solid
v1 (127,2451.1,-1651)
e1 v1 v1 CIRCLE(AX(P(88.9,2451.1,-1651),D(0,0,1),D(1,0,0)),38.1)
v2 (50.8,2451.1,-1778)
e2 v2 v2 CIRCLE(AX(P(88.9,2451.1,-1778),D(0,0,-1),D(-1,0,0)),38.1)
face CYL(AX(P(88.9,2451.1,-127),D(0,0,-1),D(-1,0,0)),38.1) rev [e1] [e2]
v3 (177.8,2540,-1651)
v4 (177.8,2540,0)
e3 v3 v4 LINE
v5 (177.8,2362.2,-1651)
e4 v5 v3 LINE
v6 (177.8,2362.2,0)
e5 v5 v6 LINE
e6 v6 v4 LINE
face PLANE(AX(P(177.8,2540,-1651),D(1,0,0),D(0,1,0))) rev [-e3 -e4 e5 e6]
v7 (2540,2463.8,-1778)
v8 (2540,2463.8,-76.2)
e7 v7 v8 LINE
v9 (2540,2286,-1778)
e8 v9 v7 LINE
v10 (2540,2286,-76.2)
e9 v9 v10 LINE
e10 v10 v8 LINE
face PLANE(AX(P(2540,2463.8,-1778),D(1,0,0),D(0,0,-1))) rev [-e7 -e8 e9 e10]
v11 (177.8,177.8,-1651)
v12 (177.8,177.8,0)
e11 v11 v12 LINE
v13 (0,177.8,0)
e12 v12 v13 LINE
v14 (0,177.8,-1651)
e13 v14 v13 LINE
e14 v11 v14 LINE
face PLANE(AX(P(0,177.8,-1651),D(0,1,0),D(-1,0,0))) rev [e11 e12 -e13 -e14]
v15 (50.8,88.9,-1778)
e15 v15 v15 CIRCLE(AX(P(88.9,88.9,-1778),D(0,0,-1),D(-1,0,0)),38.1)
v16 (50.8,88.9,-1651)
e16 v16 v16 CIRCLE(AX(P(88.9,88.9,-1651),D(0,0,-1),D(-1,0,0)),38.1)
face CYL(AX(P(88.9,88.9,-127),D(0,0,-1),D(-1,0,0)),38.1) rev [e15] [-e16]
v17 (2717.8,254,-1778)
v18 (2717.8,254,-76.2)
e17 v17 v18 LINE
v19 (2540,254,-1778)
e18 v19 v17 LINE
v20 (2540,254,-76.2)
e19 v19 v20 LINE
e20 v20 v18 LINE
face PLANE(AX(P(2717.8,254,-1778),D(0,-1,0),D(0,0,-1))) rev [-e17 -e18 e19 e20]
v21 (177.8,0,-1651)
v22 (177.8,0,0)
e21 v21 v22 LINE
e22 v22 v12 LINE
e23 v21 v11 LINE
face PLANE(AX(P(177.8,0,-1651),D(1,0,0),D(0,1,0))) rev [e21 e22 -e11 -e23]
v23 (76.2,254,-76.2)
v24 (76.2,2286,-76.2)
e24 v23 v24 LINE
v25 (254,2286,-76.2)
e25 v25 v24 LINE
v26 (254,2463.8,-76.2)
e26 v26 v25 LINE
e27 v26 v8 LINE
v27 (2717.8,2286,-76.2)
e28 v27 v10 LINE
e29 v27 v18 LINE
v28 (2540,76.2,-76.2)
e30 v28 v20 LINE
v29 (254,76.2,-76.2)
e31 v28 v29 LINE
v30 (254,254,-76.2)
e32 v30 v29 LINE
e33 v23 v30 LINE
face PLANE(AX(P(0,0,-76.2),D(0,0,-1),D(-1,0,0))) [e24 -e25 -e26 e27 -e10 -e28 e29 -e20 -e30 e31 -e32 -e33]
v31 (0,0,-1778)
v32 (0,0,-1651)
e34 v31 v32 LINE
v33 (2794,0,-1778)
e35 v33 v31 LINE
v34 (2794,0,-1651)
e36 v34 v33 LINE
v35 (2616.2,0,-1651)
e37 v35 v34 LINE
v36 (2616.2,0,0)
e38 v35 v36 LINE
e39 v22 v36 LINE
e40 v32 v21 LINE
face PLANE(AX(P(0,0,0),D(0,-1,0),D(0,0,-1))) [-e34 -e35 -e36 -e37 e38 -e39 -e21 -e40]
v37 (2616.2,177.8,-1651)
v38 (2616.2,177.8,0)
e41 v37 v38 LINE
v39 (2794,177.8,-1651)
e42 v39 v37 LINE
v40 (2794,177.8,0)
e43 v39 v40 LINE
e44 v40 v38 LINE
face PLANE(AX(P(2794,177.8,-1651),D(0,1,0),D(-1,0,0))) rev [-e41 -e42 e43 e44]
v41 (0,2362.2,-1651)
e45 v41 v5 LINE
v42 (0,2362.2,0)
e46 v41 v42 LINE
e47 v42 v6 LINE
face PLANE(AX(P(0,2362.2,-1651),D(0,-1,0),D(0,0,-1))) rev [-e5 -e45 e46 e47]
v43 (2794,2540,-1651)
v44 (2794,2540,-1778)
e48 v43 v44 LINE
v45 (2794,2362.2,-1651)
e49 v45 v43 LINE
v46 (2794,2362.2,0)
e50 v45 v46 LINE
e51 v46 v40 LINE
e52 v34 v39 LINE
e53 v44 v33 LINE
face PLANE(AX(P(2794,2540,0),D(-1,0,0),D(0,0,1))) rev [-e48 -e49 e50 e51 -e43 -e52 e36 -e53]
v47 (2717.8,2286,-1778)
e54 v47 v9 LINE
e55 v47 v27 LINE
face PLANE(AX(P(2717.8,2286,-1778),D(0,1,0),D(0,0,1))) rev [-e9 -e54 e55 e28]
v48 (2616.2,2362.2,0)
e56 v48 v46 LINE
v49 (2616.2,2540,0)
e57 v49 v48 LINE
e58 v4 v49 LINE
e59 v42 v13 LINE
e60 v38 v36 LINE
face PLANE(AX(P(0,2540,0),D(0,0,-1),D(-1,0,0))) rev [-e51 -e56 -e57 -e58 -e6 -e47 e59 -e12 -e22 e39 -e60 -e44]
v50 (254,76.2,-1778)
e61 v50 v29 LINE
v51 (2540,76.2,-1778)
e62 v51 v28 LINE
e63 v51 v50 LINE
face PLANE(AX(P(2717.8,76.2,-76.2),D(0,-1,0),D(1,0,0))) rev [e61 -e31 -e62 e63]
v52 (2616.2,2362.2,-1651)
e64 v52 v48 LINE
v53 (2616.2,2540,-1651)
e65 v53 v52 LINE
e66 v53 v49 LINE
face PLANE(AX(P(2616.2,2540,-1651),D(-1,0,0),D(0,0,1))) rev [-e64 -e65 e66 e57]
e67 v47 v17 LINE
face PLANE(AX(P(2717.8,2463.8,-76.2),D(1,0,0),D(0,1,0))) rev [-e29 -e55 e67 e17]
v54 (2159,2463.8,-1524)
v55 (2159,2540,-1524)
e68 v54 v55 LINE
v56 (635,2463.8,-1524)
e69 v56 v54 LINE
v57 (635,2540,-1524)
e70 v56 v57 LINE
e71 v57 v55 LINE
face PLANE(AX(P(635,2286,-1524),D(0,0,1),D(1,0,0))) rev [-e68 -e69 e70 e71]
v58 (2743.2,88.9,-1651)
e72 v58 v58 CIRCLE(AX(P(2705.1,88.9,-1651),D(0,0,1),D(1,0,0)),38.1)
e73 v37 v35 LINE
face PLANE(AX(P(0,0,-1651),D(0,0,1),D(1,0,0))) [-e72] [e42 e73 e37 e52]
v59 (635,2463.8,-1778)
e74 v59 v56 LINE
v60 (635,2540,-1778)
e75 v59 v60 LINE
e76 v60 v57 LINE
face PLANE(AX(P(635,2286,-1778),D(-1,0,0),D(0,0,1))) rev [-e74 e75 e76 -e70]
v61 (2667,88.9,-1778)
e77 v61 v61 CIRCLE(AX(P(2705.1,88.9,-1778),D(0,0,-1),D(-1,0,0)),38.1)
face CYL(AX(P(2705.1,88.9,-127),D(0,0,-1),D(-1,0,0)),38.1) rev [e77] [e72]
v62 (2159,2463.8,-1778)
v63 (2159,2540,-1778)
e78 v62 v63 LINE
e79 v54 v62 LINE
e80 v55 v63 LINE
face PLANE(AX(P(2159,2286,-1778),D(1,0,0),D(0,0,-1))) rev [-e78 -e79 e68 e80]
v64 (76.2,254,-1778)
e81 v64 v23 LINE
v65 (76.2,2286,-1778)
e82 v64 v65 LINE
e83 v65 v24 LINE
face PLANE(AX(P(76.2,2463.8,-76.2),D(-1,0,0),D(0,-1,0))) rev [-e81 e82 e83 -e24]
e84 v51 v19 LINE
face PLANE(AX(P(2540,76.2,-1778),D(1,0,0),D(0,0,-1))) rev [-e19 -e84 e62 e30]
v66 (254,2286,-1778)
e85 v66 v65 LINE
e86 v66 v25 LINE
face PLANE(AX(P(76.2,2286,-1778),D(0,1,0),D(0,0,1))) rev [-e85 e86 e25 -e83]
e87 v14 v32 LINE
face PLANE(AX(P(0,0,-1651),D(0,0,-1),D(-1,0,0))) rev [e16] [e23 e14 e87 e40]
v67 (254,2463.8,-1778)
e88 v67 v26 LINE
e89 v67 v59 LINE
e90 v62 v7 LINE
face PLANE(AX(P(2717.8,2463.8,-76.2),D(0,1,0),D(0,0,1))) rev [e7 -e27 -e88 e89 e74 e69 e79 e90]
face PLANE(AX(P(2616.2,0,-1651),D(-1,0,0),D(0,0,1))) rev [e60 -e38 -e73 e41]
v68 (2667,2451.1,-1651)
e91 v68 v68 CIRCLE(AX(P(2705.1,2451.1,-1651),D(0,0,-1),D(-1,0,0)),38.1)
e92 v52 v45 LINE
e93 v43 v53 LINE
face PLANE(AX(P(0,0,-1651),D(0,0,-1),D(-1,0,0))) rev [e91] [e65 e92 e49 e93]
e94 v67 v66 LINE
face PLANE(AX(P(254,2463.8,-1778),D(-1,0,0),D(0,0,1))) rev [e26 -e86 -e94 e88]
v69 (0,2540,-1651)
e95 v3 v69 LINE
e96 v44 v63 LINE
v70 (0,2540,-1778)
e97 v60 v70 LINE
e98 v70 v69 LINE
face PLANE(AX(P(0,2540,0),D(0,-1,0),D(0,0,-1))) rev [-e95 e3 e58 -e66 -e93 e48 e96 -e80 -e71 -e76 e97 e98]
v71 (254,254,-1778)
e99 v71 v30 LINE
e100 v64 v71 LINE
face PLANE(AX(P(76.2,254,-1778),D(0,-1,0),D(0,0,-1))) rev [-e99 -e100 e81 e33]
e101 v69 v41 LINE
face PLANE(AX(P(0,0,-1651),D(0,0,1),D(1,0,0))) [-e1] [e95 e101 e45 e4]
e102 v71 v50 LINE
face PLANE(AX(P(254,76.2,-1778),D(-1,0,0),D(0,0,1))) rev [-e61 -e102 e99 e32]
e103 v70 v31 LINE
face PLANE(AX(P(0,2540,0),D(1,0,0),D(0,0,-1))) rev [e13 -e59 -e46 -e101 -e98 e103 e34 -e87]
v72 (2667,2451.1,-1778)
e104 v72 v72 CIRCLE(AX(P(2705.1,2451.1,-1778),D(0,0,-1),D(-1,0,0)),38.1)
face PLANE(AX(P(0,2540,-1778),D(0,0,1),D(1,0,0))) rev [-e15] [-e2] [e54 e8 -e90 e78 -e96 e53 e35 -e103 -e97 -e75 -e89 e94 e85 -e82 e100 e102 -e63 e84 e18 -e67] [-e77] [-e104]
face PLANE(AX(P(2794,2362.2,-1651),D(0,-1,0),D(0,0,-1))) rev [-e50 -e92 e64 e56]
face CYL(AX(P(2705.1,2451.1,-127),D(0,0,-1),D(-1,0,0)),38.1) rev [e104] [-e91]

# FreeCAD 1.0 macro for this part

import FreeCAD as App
import Part
import Sketcher

V = App.Vector
Q = App.Units.Quantity

doc = App.newDocument("Part")
params = doc.addObject("Spreadsheet::Sheet", "Params")
for row, (alias, value) in enumerate([
    ("sketch1_width", "110 in"),
    ("sketch1_height", "70 in"),
    ("pad1_length", "100 in"),
    ("sketch2_width", "104 in"),
    ("sketch2_height", "94 in"),
    ("pocket1_length", "67 in"),
    ("sketch3_width", "7 in"),
    ("pad2_length", "67 in"),
    ("sketch4_width", "7 in"),
    ("pocket2_length", "65 in"),
    ("sketch5_diameter", "3 in"),
    ("pocket3_length", "65 in"),
    ("sketch6_width", "60 in"),
    ("sketch6_height", "10 in"),
    ("pocket4_length", "10 in"),
], start=1):
    params.set(f"A{row}", alias)
    params.set(f"B{row}", "=" + value)
    params.setAlias(f"B{row}", alias)

body = doc.addObject("PartDesign::Body", "Body")

# Sketch on XZ plane
sketch1 = body.newObject("Sketcher::SketchObject", "Sketch")
sketch1.AttachmentSupport = (doc.getObject("XZ_Plane"), [""])
sketch1.MapMode = "FlatFace"
sketch1.addGeometry([
    Part.LineSegment(V(0, -1778, 0), V(0, 0, 0)),
    Part.LineSegment(V(0, 0, 0), V(2794, 0, 0)),
    Part.LineSegment(V(2794, 0, 0), V(2794, -1778, 0)),
    Part.LineSegment(V(2794, -1778, 0), V(0, -1778, 0)),
], False)
sketch1.addConstraint([
    Sketcher.Constraint("Coincident", 0, 2, 1, 1),
    Sketcher.Constraint("Coincident", 1, 2, 2, 1),
    Sketcher.Constraint("Coincident", 2, 2, 3, 1),
    Sketcher.Constraint("Coincident", 3, 2, 0, 1),
    Sketcher.Constraint("Vertical", 0),
    Sketcher.Constraint("Horizontal", 1),
    Sketcher.Constraint("Vertical", 2),
    Sketcher.Constraint("Horizontal", 3),
    Sketcher.Constraint("Coincident", 0, 2, -1, 1),
    Sketcher.Constraint("DistanceX", 1, 1, 1, 2, Q("110 in")),
    Sketcher.Constraint("DistanceY", 0, 1, 0, 2, Q("70 in")),
])
sketch1.setExpression("Constraints[9]", "Params.sketch1_width")
sketch1.setExpression("Constraints[10]", "Params.sketch1_height")
pad1 = body.newObject("PartDesign::Pad", "Pad")
pad1.Profile = sketch1
pad1.setExpression("Length", "Params.pad1_length")
pad1.Reversed = True

# Sketch on XY plane
sketch2 = body.newObject("Sketcher::SketchObject", "Sketch001")
sketch2.AttachmentSupport = (doc.getObject("XY_Plane"), [""])
sketch2.MapMode = "FlatFace"
sketch2.AttachmentOffset = App.Placement(V(0, 0, -70 * 25.4), App.Rotation())
sketch2.addGeometry([
    Part.LineSegment(V(2718, 2464, 0), V(2718, 76, 0)),
    Part.LineSegment(V(2718, 76, 0), V(76, 76, 0)),
    Part.LineSegment(V(76, 76, 0), V(76, 2464, 0)),
    Part.LineSegment(V(76, 2464, 0), V(2718, 2464, 0)),
], False)
sketch2.addConstraint([
    Sketcher.Constraint("Coincident", 0, 2, 1, 1),
    Sketcher.Constraint("Coincident", 1, 2, 2, 1),
    Sketcher.Constraint("Coincident", 2, 2, 3, 1),
    Sketcher.Constraint("Coincident", 3, 2, 0, 1),
    Sketcher.Constraint("Vertical", 0),
    Sketcher.Constraint("Horizontal", 1),
    Sketcher.Constraint("Vertical", 2),
    Sketcher.Constraint("Horizontal", 3),
    Sketcher.Constraint("DistanceX", 1, 2, 1, 1, Q("104 in")),
    Sketcher.Constraint("DistanceY", 0, 2, 0, 1, Q("94 in")),
    Sketcher.Constraint("DistanceX", -1, 1, 0, 2, Q("107 in")),
    Sketcher.Constraint("DistanceY", -1, 1, 0, 2, Q("3 in")),
])
sketch2.setExpression("Constraints[8]", "Params.sketch2_width")
sketch2.setExpression("Constraints[9]", "Params.sketch2_height")
pocket1 = body.newObject("PartDesign::Pocket", "Pocket")
pocket1.Profile = sketch2
pocket1.setExpression("Length", "Params.pocket1_length")
pocket1.Reversed = True

# Sketch on XY plane
sketch3 = body.newObject("Sketcher::SketchObject", "Sketch002")
sketch3.AttachmentSupport = (doc.getObject("XY_Plane"), [""])
sketch3.MapMode = "FlatFace"
sketch3.AttachmentOffset = App.Placement(V(0, 0, -3 * 25.4), App.Rotation())
sketch3.addGeometry([
    Part.LineSegment(V(2718, 2464, 0), V(2718, 2286, 0)),  # 0
    Part.LineSegment(V(2718, 2286, 0), V(2540, 2286, 0)),  # 1
    Part.LineSegment(V(2540, 2286, 0), V(2540, 2464, 0)),  # 2
    Part.LineSegment(V(2540, 2464, 0), V(2718, 2464, 0)),  # 3
    Part.LineSegment(V(254, 2464, 0), V(254, 2286, 0)),  # 4
    Part.LineSegment(V(254, 2286, 0), V(76, 2286, 0)),  # 5
    Part.LineSegment(V(76, 2286, 0), V(76, 2464, 0)),  # 6
    Part.LineSegment(V(76, 2464, 0), V(254, 2464, 0)),  # 7
    Part.LineSegment(V(2718, 254, 0), V(2718, 76, 0)),  # 8
    Part.LineSegment(V(2718, 76, 0), V(2540, 76, 0)),  # 9
    Part.LineSegment(V(2540, 76, 0), V(2540, 254, 0)),  # 10
    Part.LineSegment(V(2540, 254, 0), V(2718, 254, 0)),  # 11
    Part.LineSegment(V(254, 254, 0), V(254, 76, 0)),  # 12
    Part.LineSegment(V(254, 76, 0), V(76, 76, 0)),  # 13
    Part.LineSegment(V(76, 76, 0), V(76, 254, 0)),  # 14
    Part.LineSegment(V(76, 254, 0), V(254, 254, 0)),  # 15
], False)
sketch3.addConstraint([
    Sketcher.Constraint("Coincident", 0, 2, 1, 1),
    Sketcher.Constraint("Coincident", 1, 2, 2, 1),
    Sketcher.Constraint("Coincident", 2, 2, 3, 1),
    Sketcher.Constraint("Coincident", 3, 2, 0, 1),
    Sketcher.Constraint("Coincident", 4, 2, 5, 1),
    Sketcher.Constraint("Coincident", 5, 2, 6, 1),
    Sketcher.Constraint("Coincident", 6, 2, 7, 1),
    Sketcher.Constraint("Coincident", 7, 2, 4, 1),
    Sketcher.Constraint("Coincident", 8, 2, 9, 1),
    Sketcher.Constraint("Coincident", 9, 2, 10, 1),
    Sketcher.Constraint("Coincident", 10, 2, 11, 1),
    Sketcher.Constraint("Coincident", 11, 2, 8, 1),
    Sketcher.Constraint("Coincident", 12, 2, 13, 1),
    Sketcher.Constraint("Coincident", 13, 2, 14, 1),
    Sketcher.Constraint("Coincident", 14, 2, 15, 1),
    Sketcher.Constraint("Coincident", 15, 2, 12, 1),
    Sketcher.Constraint("Vertical", 0),
    Sketcher.Constraint("Horizontal", 1),
    Sketcher.Constraint("Vertical", 2),
    Sketcher.Constraint("Horizontal", 3),
    Sketcher.Constraint("Vertical", 4),
    Sketcher.Constraint("Horizontal", 5),
    Sketcher.Constraint("Vertical", 6),
    Sketcher.Constraint("Horizontal", 7),
    Sketcher.Constraint("Vertical", 8),
    Sketcher.Constraint("Horizontal", 9),
    Sketcher.Constraint("Vertical", 10),
    Sketcher.Constraint("Horizontal", 11),
    Sketcher.Constraint("Vertical", 12),
    Sketcher.Constraint("Horizontal", 13),
    Sketcher.Constraint("Vertical", 14),
    Sketcher.Constraint("Horizontal", 15),
    Sketcher.Constraint("Horizontal", 1, 2, 4, 2),
    Sketcher.Constraint("Horizontal", 3, 2, 6, 2),
    Sketcher.Constraint("Horizontal", 9, 2, 12, 2),
    Sketcher.Constraint("Horizontal", 11, 2, 14, 2),
    Sketcher.Constraint("Vertical", 3, 2, 8, 2),
    Sketcher.Constraint("Vertical", 2, 2, 9, 2),
    Sketcher.Constraint("Vertical", 7, 2, 12, 2),
    Sketcher.Constraint("Vertical", 6, 2, 13, 2),
    Sketcher.Constraint("Equal", 3, 5),
    Sketcher.Constraint("Equal", 15, 0),
    Sketcher.Constraint("Equal", 6, 8),
    Sketcher.Constraint("DistanceX", 1, 2, 1, 1, Q("7 in")),
    Sketcher.Constraint("DistanceX", -1, 1, 0, 2, Q("107 in")),
    Sketcher.Constraint("DistanceY", -1, 1, 0, 2, Q("90 in")),
    Sketcher.Constraint("DistanceX", -1, 1, 4, 2, Q("10 in")),
    Sketcher.Constraint("DistanceY", -1, 1, 8, 2, Q("3 in")),
])
sketch3.setExpression("Constraints[43]", "Params.sketch3_width")
pad2 = body.newObject("PartDesign::Pad", "Pad001")
pad2.Profile = sketch3
pad2.setExpression("Length", "Params.pad2_length")
pad2.Reversed = True

# Sketch on XY plane
sketch4 = body.newObject("Sketcher::SketchObject", "Sketch003")
sketch4.AttachmentSupport = (doc.getObject("XY_Plane"), [""])
sketch4.MapMode = "FlatFace"
sketch4.addGeometry([
    Part.LineSegment(V(0, 2540, 0), V(0, 2362, 0)),  # 0
    Part.LineSegment(V(0, 2362, 0), V(178, 2362, 0)),  # 1
    Part.LineSegment(V(178, 2362, 0), V(178, 2540, 0)),  # 2
    Part.LineSegment(V(178, 2540, 0), V(0, 2540, 0)),  # 3
    Part.LineSegment(V(2616, 2540, 0), V(2616, 2362, 0)),  # 4
    Part.LineSegment(V(2616, 2362, 0), V(2794, 2362, 0)),  # 5
    Part.LineSegment(V(2794, 2362, 0), V(2794, 2540, 0)),  # 6
    Part.LineSegment(V(2794, 2540, 0), V(2616, 2540, 0)),  # 7
    Part.LineSegment(V(0, 178, 0), V(0, 0, 0)),  # 8
    Part.LineSegment(V(0, 0, 0), V(178, 0, 0)),  # 9
    Part.LineSegment(V(178, 0, 0), V(178, 178, 0)),  # 10
    Part.LineSegment(V(178, 178, 0), V(0, 178, 0)),  # 11
    Part.LineSegment(V(2616, 178, 0), V(2616, 0, 0)),  # 12
    Part.LineSegment(V(2616, 0, 0), V(2794, 0, 0)),  # 13
    Part.LineSegment(V(2794, 0, 0), V(2794, 178, 0)),  # 14
    Part.LineSegment(V(2794, 178, 0), V(2616, 178, 0)),  # 15
], False)
sketch4.addConstraint([
    Sketcher.Constraint("Coincident", 0, 2, 1, 1),
    Sketcher.Constraint("Coincident", 1, 2, 2, 1),
    Sketcher.Constraint("Coincident", 2, 2, 3, 1),
    Sketcher.Constraint("Coincident", 3, 2, 0, 1),
    Sketcher.Constraint("Coincident", 4, 2, 5, 1),
    Sketcher.Constraint("Coincident", 5, 2, 6, 1),
    Sketcher.Constraint("Coincident", 6, 2, 7, 1),
    Sketcher.Constraint("Coincident", 7, 2, 4, 1),
    Sketcher.Constraint("Coincident", 8, 2, 9, 1),
    Sketcher.Constraint("Coincident", 9, 2, 10, 1),
    Sketcher.Constraint("Coincident", 10, 2, 11, 1),
    Sketcher.Constraint("Coincident", 11, 2, 8, 1),
    Sketcher.Constraint("Coincident", 12, 2, 13, 1),
    Sketcher.Constraint("Coincident", 13, 2, 14, 1),
    Sketcher.Constraint("Coincident", 14, 2, 15, 1),
    Sketcher.Constraint("Coincident", 15, 2, 12, 1),
    Sketcher.Constraint("Vertical", 0),
    Sketcher.Constraint("Horizontal", 1),
    Sketcher.Constraint("Vertical", 2),
    Sketcher.Constraint("Horizontal", 3),
    Sketcher.Constraint("Vertical", 4),
    Sketcher.Constraint("Horizontal", 5),
    Sketcher.Constraint("Vertical", 6),
    Sketcher.Constraint("Horizontal", 7),
    Sketcher.Constraint("Vertical", 8),
    Sketcher.Constraint("Horizontal", 9),
    Sketcher.Constraint("Vertical", 10),
    Sketcher.Constraint("Horizontal", 11),
    Sketcher.Constraint("Vertical", 12),
    Sketcher.Constraint("Horizontal", 13),
    Sketcher.Constraint("Vertical", 14),
    Sketcher.Constraint("Horizontal", 15),
    Sketcher.Constraint("Coincident", 8, 2, -1, 1),
    Sketcher.Constraint("PointOnObject", 0, 2, -2),
    Sketcher.Constraint("PointOnObject", 12, 2, -1),
    Sketcher.Constraint("Horizontal", 1, 2, 4, 2),
    Sketcher.Constraint("Horizontal", 3, 2, 6, 2),
    Sketcher.Constraint("Horizontal", 11, 2, 14, 2),
    Sketcher.Constraint("Vertical", 2, 2, 9, 2),
    Sketcher.Constraint("Vertical", 7, 2, 12, 2),
    Sketcher.Constraint("Vertical", 6, 2, 13, 2),
    Sketcher.Constraint("Equal", 3, 5),
    Sketcher.Constraint("Equal", 15, 0),
    Sketcher.Constraint("Equal", 6, 8),
    Sketcher.Constraint("DistanceX", 1, 1, 1, 2, Q("7 in")),
    Sketcher.Constraint("DistanceY", -1, 1, 0, 2, Q("93 in")),
    Sketcher.Constraint("DistanceX", -1, 1, 4, 2, Q("103 in")),
])
sketch4.setExpression("Constraints[44]", "Params.sketch4_width")
pocket2 = body.newObject("PartDesign::Pocket", "Pocket001")
pocket2.Profile = sketch4
pocket2.setExpression("Length", "Params.pocket2_length")

# Sketch on XY plane
sketch5 = body.newObject("Sketcher::SketchObject", "Sketch004")
sketch5.AttachmentSupport = (doc.getObject("XY_Plane"), [""])
sketch5.MapMode = "FlatFace"
sketch5.AttachmentOffset = App.Placement(V(0, 0, -70 * 25.4), App.Rotation())
sketch5.addGeometry([
    Part.Circle(V(2705, 2451, 0), V(0, 0, 1), 38),
    Part.Circle(V(2705, 89, 0), V(0, 0, 1), 38),
    Part.Circle(V(89, 2451, 0), V(0, 0, 1), 38),
    Part.Circle(V(89, 89, 0), V(0, 0, 1), 38),
], False)
sketch5.addConstraint([
    Sketcher.Constraint("Equal", 0, 1),
    Sketcher.Constraint("Equal", 1, 2),
    Sketcher.Constraint("Equal", 2, 3),
    Sketcher.Constraint("Horizontal", 0, 3, 2, 3),
    Sketcher.Constraint("Horizontal", 1, 3, 3, 3),
    Sketcher.Constraint("Vertical", 0, 3, 1, 3),
    Sketcher.Constraint("Vertical", 2, 3, 3, 3),
    Sketcher.Constraint("Diameter", 0, Q("3 in")),
    Sketcher.Constraint("DistanceY", 1, 3, 0, 3, Q("93 in")),
    Sketcher.Constraint("DistanceX", 2, 3, 0, 3, Q("103 in")),
    Sketcher.Constraint("DistanceX", -1, 1, 0, 3, Q("106.5 in")),
    Sketcher.Constraint("DistanceY", -1, 1, 0, 3, Q("96.5 in")),
])
sketch5.setExpression("Constraints[7]", "Params.sketch5_diameter")
pocket3 = body.newObject("PartDesign::Pocket", "Pocket002")
pocket3.Profile = sketch5
pocket3.setExpression("Length", "Params.pocket3_length")
pocket3.Reversed = True

# Sketch on XZ plane
sketch6 = body.newObject("Sketcher::SketchObject", "Sketch005")
sketch6.AttachmentSupport = (doc.getObject("XZ_Plane"), [""])
sketch6.MapMode = "FlatFace"
sketch6.AttachmentOffset = App.Placement(V(0, 0, -100 * 25.4), App.Rotation())
sketch6.addGeometry([
    Part.LineSegment(V(635, -1778, 0), V(635, -1524, 0)),
    Part.LineSegment(V(635, -1524, 0), V(2159, -1524, 0)),
    Part.LineSegment(V(2159, -1524, 0), V(2159, -1778, 0)),
    Part.LineSegment(V(2159, -1778, 0), V(635, -1778, 0)),
], False)
sketch6.addConstraint([
    Sketcher.Constraint("Coincident", 0, 2, 1, 1),
    Sketcher.Constraint("Coincident", 1, 2, 2, 1),
    Sketcher.Constraint("Coincident", 2, 2, 3, 1),
    Sketcher.Constraint("Coincident", 3, 2, 0, 1),
    Sketcher.Constraint("Vertical", 0),
    Sketcher.Constraint("Horizontal", 1),
    Sketcher.Constraint("Vertical", 2),
    Sketcher.Constraint("Horizontal", 3),
    Sketcher.Constraint("DistanceX", 1, 1, 1, 2, Q("60 in")),
    Sketcher.Constraint("DistanceY", 0, 1, 0, 2, Q("10 in")),
    Sketcher.Constraint("DistanceX", -1, 1, 0, 2, Q("25 in")),
    Sketcher.Constraint("DistanceY", 0, 2, -1, 1, Q("60 in")),
])
sketch6.setExpression("Constraints[8]", "Params.sketch6_width")
sketch6.setExpression("Constraints[9]", "Params.sketch6_height")
pocket4 = body.newObject("PartDesign::Pocket", "Pocket003")
pocket4.Profile = sketch6
pocket4.setExpression("Length", "Params.pocket4_length")
pocket4.Reversed = True

doc.recompute()
